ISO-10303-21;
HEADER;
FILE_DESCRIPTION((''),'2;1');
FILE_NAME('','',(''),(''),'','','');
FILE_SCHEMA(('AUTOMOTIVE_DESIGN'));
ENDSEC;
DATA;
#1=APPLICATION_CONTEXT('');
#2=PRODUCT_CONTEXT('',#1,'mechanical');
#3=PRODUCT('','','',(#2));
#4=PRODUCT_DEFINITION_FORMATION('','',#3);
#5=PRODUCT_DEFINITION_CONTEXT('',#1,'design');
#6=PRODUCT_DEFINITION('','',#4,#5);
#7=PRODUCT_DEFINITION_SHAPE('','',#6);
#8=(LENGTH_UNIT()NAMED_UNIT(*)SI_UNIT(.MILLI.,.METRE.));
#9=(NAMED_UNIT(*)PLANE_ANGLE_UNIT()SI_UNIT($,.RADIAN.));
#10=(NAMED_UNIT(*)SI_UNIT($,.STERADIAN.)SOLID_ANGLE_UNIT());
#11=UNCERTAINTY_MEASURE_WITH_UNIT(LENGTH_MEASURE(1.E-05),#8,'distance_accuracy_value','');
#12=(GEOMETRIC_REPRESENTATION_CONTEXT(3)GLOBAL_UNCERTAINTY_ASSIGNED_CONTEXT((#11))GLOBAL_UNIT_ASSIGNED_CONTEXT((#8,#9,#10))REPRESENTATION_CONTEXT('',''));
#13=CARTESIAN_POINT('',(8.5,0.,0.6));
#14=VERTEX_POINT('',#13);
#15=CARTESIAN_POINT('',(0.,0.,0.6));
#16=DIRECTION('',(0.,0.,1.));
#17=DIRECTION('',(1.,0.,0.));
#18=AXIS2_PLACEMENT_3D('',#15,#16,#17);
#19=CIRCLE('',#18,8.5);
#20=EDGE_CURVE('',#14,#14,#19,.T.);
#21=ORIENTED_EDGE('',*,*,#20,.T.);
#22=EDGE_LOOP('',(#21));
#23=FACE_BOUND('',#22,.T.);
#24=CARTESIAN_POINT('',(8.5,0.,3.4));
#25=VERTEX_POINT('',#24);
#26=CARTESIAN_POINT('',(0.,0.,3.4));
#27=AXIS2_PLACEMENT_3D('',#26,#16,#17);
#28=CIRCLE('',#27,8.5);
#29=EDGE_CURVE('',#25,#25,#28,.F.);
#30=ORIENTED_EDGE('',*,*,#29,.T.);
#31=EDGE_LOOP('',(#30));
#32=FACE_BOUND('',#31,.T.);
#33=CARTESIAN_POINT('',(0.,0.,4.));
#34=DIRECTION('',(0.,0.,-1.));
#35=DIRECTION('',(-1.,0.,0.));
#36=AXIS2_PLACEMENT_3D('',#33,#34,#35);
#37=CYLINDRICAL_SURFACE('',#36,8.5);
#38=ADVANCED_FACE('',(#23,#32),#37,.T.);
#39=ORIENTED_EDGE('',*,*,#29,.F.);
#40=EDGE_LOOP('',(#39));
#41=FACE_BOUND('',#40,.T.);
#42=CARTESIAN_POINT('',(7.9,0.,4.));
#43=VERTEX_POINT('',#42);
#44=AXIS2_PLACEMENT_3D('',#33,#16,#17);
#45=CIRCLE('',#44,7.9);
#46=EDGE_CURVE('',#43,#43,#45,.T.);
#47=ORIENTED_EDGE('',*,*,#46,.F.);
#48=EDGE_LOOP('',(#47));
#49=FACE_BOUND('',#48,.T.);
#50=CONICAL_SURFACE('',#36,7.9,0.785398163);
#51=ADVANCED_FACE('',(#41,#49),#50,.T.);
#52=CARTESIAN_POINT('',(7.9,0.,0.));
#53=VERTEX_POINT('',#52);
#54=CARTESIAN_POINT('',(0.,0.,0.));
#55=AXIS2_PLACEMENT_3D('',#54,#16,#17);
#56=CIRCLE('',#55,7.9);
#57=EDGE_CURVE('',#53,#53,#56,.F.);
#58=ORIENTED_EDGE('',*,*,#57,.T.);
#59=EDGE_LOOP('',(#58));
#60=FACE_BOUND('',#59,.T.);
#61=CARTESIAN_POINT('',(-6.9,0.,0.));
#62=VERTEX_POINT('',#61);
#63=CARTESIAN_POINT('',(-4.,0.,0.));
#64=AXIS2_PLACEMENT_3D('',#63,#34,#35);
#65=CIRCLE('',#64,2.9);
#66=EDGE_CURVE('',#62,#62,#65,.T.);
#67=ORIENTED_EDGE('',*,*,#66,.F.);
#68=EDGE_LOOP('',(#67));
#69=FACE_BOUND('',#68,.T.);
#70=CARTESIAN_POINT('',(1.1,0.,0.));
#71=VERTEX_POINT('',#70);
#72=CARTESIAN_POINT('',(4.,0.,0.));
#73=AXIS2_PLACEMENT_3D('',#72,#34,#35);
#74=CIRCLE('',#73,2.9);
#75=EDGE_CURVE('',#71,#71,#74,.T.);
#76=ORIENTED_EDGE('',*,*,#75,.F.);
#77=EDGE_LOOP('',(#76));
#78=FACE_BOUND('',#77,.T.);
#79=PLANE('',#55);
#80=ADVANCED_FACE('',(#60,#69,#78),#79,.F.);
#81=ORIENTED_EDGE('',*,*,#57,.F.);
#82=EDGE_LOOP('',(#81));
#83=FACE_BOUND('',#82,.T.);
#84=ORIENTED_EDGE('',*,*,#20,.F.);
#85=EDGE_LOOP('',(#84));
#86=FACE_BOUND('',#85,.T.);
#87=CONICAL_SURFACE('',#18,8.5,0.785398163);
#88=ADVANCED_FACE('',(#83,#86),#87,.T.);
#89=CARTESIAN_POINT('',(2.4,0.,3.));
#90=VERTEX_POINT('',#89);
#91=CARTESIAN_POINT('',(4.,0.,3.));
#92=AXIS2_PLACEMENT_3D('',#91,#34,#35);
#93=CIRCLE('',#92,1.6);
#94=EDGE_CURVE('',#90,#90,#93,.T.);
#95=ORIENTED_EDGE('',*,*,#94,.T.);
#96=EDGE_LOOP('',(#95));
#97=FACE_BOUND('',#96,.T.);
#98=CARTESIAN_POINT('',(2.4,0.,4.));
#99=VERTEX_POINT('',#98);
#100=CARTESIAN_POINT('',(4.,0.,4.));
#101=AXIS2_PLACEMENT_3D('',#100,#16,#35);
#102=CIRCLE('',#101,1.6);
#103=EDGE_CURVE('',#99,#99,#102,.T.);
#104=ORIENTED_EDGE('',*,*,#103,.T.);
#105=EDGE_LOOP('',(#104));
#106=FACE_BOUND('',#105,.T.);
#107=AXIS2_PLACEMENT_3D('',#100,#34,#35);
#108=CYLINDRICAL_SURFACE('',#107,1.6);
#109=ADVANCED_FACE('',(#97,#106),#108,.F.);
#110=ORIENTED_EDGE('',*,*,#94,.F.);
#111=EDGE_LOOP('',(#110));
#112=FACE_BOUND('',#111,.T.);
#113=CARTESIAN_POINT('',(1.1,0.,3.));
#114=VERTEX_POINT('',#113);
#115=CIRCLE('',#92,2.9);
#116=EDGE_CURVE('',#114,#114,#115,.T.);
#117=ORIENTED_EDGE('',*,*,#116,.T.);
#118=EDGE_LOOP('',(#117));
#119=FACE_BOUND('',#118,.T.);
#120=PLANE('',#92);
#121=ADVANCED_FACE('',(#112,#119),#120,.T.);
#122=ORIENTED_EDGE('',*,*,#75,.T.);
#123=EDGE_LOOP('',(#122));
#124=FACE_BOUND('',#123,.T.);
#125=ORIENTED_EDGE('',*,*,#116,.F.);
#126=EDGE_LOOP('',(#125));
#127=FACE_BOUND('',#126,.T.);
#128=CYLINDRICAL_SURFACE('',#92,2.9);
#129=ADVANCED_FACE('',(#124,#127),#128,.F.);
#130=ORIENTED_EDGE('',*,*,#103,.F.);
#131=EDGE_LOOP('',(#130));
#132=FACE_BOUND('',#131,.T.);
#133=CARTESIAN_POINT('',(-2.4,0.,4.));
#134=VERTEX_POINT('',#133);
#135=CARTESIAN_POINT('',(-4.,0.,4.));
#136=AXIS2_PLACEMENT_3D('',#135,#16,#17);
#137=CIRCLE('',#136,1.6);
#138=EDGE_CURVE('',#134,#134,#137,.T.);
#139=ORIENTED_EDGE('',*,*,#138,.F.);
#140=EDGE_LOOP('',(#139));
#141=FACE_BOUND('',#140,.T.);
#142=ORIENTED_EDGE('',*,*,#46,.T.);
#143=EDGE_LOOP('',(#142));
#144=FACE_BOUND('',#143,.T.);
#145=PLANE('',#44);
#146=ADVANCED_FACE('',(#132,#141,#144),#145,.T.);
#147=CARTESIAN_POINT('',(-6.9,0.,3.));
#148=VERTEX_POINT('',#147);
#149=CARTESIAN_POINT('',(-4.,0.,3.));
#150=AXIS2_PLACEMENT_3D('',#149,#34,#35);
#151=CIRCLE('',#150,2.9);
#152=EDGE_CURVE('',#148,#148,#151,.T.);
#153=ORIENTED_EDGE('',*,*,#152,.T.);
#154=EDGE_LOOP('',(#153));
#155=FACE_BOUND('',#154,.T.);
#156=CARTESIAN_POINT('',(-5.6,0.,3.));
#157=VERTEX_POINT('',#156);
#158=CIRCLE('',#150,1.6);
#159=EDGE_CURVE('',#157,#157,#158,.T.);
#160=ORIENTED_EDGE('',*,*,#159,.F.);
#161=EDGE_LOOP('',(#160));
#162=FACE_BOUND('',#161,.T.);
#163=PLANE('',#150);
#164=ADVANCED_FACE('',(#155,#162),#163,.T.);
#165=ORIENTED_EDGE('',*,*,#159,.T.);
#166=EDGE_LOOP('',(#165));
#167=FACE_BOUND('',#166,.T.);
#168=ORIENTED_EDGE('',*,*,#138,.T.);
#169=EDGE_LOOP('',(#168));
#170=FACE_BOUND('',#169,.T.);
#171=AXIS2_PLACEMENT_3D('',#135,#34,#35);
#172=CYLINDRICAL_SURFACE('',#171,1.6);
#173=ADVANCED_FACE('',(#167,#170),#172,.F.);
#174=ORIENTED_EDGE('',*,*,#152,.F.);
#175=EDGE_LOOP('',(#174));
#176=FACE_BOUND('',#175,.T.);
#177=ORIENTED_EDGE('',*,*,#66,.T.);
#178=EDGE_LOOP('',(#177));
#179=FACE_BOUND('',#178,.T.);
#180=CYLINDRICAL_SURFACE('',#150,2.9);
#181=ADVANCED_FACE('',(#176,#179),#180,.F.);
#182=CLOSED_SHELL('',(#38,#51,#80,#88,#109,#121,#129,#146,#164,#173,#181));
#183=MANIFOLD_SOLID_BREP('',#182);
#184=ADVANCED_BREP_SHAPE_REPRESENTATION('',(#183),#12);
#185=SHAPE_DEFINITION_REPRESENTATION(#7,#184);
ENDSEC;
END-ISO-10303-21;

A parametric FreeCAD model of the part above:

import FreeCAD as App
import Part
import Sketcher

V = App.Vector
Q = App.Units.Quantity


def edges_at(feature, points):
    """Names of the edges that pass closest to the given points."""
    edges = feature.Shape.Edges
    near = lambda p: min(range(len(edges)), key=lambda i: edges[i].distToShape(Part.Vertex(*p))[0])
    return sorted({f"Edge{near(p) + 1}" for p in points})

doc = App.newDocument("Part")
params = doc.addObject("Spreadsheet::Sheet", "Params")
for row, (alias, value) in enumerate([
    ("sketch1_diameter", "17 mm"),
    ("sketch1_diameter2", "3.2 mm"),
    ("pad1_length", "4 mm"),
    ("sketch2_diameter", "5.8 mm"),
    ("pocket1_length", "3 mm"),
    ("chamfer_size", "0.6 mm"),
], start=1):
    params.set(f"A{row}", alias)
    params.set(f"B{row}", "=" + value)
    params.setAlias(f"B{row}", alias)

body = doc.addObject("PartDesign::Body", "Body")

sketch1 = body.newObject("Sketcher::SketchObject", "Sketch")
sketch1.AttachmentSupport = (doc.getObject("XY_Plane"), [""])
sketch1.MapMode = "FlatFace"
sketch1.addGeometry([
    Part.Circle(V(0, 0, 0), V(0, 0, 1), 8.5),
    Part.Circle(V(-4, 0, 0), V(0, 0, 1), 1.6),
    Part.Circle(V(4, 0, 0), V(0, 0, 1), 1.6),
], False)
sketch1.addConstraint([
    Sketcher.Constraint("Coincident", 0, 3, -1, 1),
    Sketcher.Constraint("Equal", 1, 2),
    Sketcher.Constraint("Symmetric", 1, 3, 2, 3, -1, 1),
    Sketcher.Constraint("PointOnObject", 1, 3, -1),
    Sketcher.Constraint("Diameter", 0, Q("17 mm")),
    Sketcher.Constraint("Diameter", 1, Q("3.2 mm")),
    Sketcher.Constraint("DistanceX", 1, 3, -1, 1, Q("4 mm")),
])
sketch1.setExpression("Constraints[4]", "Params.sketch1_diameter")
sketch1.setExpression("Constraints[5]", "Params.sketch1_diameter2")
pad1 = body.newObject("PartDesign::Pad", "Pad")
pad1.Profile = sketch1
pad1.setExpression("Length", "Params.pad1_length")

sketch2 = body.newObject("Sketcher::SketchObject", "Sketch001")
sketch2.AttachmentSupport = (doc.getObject("XY_Plane"), [""])
sketch2.MapMode = "FlatFace"
sketch2.addGeometry([
    Part.Circle(V(-4, 0, 0), V(0, 0, 1), 2.9),
    Part.Circle(V(4, 0, 0), V(0, 0, 1), 2.9),
], False)
sketch2.addConstraint([
    Sketcher.Constraint("Equal", 0, 1),
    Sketcher.Constraint("Symmetric", 0, 3, 1, 3, -1, 1),
    Sketcher.Constraint("PointOnObject", 0, 3, -1),
    Sketcher.Constraint("Diameter", 0, Q("5.8 mm")),
    Sketcher.Constraint("DistanceX", 0, 3, -1, 1, Q("4 mm")),
])
sketch2.setExpression("Constraints[3]", "Params.sketch2_diameter")
pocket1 = body.newObject("PartDesign::Pocket", "Pocket")
pocket1.Profile = sketch2
pocket1.setExpression("Length", "Params.pocket1_length")
pocket1.Reversed = True
doc.recompute()

chamfer = body.newObject("PartDesign::Chamfer", "Chamfer")
chamfer.Base = (pocket1, edges_at(pocket1, [(-8.5, 0, 0), (-8.5, 0, 4)]))
chamfer.setExpression("Size", "Params.chamfer_size")

doc.recompute()
